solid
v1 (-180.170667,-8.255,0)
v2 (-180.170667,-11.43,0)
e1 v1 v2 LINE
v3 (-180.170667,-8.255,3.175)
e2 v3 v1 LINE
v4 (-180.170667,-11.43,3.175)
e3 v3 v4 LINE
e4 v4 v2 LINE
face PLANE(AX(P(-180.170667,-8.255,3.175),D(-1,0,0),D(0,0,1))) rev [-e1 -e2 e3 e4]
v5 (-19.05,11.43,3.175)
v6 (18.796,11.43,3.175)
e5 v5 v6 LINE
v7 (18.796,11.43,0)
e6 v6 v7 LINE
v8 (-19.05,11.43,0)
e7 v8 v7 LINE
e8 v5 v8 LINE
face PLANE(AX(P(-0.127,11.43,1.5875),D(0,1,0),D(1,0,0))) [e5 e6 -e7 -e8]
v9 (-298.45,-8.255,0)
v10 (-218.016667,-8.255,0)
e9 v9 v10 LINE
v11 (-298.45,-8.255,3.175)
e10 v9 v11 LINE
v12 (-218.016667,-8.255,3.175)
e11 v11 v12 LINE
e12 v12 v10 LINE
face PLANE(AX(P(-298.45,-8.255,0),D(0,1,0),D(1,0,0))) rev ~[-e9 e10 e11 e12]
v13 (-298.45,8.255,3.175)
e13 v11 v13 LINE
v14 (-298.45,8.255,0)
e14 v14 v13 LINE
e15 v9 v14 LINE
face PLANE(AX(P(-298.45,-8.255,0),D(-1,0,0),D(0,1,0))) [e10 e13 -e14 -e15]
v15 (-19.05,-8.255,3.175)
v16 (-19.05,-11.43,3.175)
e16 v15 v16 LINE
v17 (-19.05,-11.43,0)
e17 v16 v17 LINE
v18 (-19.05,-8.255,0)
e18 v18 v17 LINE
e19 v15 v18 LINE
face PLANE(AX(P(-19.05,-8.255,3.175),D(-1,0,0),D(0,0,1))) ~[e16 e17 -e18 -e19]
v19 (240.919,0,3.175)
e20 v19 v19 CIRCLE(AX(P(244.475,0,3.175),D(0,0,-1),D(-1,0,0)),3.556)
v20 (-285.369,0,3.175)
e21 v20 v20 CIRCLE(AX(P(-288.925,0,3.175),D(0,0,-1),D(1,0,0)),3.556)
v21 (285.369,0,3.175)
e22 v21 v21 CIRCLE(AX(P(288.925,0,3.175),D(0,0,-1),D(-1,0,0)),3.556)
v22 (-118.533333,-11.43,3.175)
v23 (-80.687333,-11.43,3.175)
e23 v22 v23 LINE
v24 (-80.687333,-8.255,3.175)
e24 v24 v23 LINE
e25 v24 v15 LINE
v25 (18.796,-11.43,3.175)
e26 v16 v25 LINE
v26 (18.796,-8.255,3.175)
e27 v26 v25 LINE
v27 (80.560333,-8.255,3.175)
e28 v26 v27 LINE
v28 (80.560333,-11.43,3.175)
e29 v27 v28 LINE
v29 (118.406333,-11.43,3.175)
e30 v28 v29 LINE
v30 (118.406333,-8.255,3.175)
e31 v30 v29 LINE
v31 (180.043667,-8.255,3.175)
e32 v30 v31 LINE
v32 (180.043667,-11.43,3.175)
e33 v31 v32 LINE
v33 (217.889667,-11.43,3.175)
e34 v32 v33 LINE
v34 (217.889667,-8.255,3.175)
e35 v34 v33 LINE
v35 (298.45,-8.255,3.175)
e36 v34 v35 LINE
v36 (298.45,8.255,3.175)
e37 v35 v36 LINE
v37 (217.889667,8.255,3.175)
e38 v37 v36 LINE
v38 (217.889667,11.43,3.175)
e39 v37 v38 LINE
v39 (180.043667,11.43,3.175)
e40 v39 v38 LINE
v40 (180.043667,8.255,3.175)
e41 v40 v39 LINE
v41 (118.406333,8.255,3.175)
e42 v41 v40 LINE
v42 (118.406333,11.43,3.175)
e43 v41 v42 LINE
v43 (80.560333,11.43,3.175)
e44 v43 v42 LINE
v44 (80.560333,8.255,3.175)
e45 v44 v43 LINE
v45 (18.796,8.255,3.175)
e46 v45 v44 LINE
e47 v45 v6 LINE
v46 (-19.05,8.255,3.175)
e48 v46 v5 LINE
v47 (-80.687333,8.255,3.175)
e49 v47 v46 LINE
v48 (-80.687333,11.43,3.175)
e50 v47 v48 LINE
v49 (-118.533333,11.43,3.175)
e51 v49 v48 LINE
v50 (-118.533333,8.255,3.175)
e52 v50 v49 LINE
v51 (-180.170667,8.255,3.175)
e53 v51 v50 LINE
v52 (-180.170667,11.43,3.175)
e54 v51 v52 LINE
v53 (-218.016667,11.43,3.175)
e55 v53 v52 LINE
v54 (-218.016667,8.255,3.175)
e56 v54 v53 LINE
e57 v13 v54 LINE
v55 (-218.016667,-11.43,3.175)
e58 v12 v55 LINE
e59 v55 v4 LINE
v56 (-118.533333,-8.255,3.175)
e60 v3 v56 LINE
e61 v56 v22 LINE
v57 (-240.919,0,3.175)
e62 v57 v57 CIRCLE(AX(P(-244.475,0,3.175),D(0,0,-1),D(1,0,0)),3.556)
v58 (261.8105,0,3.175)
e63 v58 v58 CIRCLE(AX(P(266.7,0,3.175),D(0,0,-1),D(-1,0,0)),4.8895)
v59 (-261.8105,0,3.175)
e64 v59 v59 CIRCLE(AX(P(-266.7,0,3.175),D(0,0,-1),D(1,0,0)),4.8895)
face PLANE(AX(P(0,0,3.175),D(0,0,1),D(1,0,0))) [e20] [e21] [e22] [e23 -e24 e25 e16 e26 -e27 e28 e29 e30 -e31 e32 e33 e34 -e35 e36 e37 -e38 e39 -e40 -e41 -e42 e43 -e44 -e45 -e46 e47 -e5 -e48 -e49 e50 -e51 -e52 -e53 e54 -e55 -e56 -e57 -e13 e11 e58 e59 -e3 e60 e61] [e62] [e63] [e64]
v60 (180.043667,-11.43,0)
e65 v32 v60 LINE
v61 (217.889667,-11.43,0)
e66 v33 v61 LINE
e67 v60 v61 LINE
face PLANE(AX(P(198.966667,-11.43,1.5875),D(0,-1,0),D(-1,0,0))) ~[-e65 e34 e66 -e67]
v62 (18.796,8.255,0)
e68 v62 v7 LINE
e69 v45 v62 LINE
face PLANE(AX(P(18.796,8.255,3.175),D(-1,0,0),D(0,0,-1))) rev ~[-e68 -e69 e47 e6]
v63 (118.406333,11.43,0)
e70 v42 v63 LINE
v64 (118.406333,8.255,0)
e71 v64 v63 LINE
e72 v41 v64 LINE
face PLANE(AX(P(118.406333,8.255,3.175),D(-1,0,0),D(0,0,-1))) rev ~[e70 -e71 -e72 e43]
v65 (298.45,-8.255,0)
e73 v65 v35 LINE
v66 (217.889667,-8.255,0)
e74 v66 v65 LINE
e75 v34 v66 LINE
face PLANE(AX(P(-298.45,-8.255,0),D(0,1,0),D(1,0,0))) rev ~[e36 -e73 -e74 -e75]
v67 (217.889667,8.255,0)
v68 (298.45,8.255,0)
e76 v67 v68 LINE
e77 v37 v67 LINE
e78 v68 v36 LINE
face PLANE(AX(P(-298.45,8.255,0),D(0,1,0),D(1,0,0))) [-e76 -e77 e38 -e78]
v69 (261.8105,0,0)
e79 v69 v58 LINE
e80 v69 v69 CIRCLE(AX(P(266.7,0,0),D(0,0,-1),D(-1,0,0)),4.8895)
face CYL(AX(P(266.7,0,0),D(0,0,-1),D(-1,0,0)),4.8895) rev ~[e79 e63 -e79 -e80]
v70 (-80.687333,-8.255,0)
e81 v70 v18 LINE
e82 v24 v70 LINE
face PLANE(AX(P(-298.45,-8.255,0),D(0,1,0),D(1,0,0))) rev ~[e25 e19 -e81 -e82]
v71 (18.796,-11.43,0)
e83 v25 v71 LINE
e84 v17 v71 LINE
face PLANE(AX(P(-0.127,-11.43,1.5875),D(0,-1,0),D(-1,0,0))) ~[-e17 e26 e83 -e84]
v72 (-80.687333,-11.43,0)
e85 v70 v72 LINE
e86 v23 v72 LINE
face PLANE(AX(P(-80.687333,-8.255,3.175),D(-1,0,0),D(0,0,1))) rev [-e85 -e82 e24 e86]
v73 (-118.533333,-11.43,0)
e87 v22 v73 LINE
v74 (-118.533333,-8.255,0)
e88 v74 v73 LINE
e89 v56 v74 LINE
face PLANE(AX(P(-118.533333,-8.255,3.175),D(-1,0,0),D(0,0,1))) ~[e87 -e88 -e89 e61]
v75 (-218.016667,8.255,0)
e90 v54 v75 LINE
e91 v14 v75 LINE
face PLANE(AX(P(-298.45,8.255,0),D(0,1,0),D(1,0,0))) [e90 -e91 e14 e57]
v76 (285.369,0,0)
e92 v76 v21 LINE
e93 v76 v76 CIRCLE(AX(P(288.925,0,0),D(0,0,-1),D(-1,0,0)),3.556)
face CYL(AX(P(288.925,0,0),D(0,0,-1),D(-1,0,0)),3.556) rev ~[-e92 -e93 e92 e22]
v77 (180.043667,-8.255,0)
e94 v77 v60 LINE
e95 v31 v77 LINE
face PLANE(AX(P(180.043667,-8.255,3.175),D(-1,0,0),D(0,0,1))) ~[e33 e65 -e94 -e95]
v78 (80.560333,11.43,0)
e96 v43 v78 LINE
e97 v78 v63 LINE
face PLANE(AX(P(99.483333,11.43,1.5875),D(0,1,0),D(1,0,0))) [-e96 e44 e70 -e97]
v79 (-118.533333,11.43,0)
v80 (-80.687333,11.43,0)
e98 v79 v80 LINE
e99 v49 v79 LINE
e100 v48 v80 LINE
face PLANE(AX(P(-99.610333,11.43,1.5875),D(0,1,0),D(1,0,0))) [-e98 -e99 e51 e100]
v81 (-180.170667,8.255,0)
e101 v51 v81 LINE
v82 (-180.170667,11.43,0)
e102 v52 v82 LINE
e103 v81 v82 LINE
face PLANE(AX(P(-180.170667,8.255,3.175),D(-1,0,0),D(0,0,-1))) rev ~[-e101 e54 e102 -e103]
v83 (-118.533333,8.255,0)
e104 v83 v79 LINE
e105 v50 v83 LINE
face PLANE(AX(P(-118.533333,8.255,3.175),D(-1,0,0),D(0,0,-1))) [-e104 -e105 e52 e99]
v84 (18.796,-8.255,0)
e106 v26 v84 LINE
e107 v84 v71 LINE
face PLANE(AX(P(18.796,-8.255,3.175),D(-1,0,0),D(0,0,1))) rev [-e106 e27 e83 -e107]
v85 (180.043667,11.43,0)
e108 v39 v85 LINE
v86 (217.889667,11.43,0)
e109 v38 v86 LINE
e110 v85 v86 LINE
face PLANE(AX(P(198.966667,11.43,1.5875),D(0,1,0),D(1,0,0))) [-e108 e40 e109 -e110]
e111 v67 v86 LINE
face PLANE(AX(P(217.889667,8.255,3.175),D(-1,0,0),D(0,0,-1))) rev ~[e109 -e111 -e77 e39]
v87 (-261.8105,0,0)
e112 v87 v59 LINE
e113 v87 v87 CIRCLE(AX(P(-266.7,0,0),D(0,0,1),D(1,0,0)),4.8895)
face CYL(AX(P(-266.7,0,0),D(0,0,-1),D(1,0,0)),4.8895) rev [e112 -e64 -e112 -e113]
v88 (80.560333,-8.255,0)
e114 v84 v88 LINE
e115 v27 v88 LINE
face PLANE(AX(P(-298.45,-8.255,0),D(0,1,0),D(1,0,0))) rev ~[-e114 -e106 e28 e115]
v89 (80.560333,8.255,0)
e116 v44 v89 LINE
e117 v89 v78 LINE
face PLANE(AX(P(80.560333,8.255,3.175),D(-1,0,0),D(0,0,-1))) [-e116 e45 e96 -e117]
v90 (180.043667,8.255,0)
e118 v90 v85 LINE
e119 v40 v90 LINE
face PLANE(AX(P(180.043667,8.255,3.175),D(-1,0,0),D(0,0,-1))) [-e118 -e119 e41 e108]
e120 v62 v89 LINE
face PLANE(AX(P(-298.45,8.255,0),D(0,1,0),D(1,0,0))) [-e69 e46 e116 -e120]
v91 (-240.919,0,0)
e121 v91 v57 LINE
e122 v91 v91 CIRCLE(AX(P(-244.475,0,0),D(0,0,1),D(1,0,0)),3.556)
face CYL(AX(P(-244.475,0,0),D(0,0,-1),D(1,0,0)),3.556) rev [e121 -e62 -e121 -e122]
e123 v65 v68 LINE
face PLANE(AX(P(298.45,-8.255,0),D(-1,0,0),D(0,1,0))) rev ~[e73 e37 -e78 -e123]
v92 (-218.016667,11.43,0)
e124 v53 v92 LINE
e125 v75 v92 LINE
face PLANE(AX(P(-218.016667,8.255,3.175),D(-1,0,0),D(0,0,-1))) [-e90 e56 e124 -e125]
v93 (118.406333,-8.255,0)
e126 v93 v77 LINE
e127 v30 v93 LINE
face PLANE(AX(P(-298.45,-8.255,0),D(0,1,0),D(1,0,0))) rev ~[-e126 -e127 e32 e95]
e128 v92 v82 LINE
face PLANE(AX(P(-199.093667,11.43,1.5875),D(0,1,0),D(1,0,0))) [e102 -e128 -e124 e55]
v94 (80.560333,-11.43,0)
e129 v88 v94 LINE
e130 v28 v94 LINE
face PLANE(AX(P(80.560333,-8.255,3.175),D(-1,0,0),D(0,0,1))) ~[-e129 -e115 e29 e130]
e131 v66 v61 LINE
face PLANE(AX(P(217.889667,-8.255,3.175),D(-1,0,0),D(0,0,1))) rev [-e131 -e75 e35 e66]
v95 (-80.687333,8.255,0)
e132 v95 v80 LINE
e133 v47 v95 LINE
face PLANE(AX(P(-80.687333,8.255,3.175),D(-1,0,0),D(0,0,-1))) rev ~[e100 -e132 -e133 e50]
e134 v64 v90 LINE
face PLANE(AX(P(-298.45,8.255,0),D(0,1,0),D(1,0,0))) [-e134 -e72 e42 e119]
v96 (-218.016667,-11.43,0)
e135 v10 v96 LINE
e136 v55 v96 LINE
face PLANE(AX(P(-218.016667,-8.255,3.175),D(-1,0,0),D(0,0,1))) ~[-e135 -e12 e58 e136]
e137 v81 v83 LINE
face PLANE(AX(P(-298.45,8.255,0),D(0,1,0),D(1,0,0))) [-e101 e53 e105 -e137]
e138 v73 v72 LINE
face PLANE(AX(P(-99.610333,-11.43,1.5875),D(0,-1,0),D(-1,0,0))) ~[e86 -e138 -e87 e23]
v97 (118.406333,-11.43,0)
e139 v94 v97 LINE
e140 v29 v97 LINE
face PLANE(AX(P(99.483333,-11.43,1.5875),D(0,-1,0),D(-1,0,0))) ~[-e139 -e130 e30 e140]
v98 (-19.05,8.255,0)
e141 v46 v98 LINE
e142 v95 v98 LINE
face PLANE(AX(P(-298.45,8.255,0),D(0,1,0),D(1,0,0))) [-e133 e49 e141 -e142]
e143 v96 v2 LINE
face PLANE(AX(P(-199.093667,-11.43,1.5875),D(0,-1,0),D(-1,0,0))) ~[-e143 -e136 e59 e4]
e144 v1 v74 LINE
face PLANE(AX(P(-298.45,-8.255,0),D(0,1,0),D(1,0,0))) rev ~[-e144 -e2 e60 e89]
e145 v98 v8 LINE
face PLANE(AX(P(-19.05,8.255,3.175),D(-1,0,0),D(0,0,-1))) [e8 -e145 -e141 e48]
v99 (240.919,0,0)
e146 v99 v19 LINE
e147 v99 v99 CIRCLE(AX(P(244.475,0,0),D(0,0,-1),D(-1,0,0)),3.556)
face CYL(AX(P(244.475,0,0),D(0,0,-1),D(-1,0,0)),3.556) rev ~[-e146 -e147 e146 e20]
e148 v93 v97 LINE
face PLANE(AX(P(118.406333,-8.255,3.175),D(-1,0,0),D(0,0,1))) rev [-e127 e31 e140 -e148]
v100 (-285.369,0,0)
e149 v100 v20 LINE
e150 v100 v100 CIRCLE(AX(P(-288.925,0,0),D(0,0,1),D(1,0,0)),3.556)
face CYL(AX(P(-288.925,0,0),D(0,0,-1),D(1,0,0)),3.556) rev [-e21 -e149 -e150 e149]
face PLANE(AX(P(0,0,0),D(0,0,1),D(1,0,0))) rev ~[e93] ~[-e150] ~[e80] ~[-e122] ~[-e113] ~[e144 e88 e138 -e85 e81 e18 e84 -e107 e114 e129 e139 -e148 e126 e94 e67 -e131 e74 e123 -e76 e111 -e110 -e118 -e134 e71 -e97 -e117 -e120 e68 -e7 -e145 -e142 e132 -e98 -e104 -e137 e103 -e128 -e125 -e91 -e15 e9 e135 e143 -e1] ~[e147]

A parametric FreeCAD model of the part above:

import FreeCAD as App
import Part
import Sketcher
from FreeCAD import Vector
Q = App.Units.Quantity


def add_polygon(sketch, points):
    """Adds a closed chain of lines whose ends are joined by coincident constraints."""
    first, n = sketch.GeometryCount, len(points)
    for a, b in zip(points, points[1:] + points[:1]):
        sketch.addGeometry(Part.LineSegment(App.Vector(*a, 0), App.Vector(*b, 0)), False)
    for i in range(n):
        sketch.addConstraint(Sketcher.Constraint("Coincident", first + i, 2, first + (i + 1) % n, 1))

doc = App.newDocument("Part")
body = doc.addObject("PartDesign::Body", "Body")

sketch1 = body.newObject("Sketcher::SketchObject", "Sketch")
sketch1.AttachmentSupport = (doc.getObject("XY_Plane"), [""])
sketch1.MapMode = "FlatFace"
add_polygon(sketch1, [(-298, 8), (-298, -8), (298, -8), (298, 8)])
sketch1.addConstraint([
    Sketcher.Constraint("Vertical", 0),
    Sketcher.Constraint("Horizontal", 1),
    Sketcher.Constraint("Vertical", 2),
    Sketcher.Constraint("Horizontal", 3),
    Sketcher.Constraint("Symmetric", 0, 2, 2, 2, -1, 1),
    Sketcher.Constraint("DistanceX", 1, 1, 1, 2, Q("23.5 in")),
    Sketcher.Constraint("DistanceY", 0, 2, 0, 1, Q("0.65 in")),
])
pad1 = body.newObject("PartDesign::Pad", "Pad")
pad1.Profile = sketch1
pad1.Length = Q("0.125 in")

sketch2 = body.newObject("Sketcher::SketchObject", "Sketch001")
sketch2.AttachmentSupport = (doc.getObject("XZ_Plane"), [""])
sketch2.MapMode = "FlatFace"
sketch2.AttachmentOffset = App.Placement(Vector(0, 0, -0.325 * 25.4), App.Rotation())
add_polygon(sketch2, [(-218, 0), (-218, 3.2), (-180.2, 3.2), (-180.2, 0)])
add_polygon(sketch2, [(-118.5, 0), (-118.5, 3.2), (-80.7, 3.2), (-80.7, 0)])
add_polygon(sketch2, [(-19.1, 0), (-19.1, 3.2), (18.8, 3.2), (18.8, 0)])
add_polygon(sketch2, [(80.6, 0), (80.6, 3.2), (118.4, 3.2), (118.4, 0)])
add_polygon(sketch2, [(180, 0), (180, 3.2), (217.9, 3.2), (217.9, 0)])
sketch2.addConstraint([
    Sketcher.Constraint("Vertical", 0),
    Sketcher.Constraint("Horizontal", 1),
    Sketcher.Constraint("Vertical", 2),
    Sketcher.Constraint("Horizontal", 3),
    Sketcher.Constraint("Vertical", 4),
    Sketcher.Constraint("Horizontal", 5),
    Sketcher.Constraint("Vertical", 6),
    Sketcher.Constraint("Horizontal", 7),
    Sketcher.Constraint("Vertical", 8),
    Sketcher.Constraint("Horizontal", 9),
    Sketcher.Constraint("Vertical", 10),
    Sketcher.Constraint("Horizontal", 11),
    Sketcher.Constraint("Vertical", 12),
    Sketcher.Constraint("Horizontal", 13),
    Sketcher.Constraint("Vertical", 14),
    Sketcher.Constraint("Horizontal", 15),
    Sketcher.Constraint("Vertical", 16),
    Sketcher.Constraint("Horizontal", 17),
    Sketcher.Constraint("Vertical", 18),
    Sketcher.Constraint("Horizontal", 19),
    Sketcher.Constraint("PointOnObject", 2, 2, -1),
    Sketcher.Constraint("PointOnObject", 6, 2, -1),
    Sketcher.Constraint("PointOnObject", 10, 2, -1),
    Sketcher.Constraint("PointOnObject", 14, 2, -1),
    Sketcher.Constraint("PointOnObject", 18, 2, -1),
    Sketcher.Constraint("Horizontal", 1, 2, 4, 2),
    Sketcher.Constraint("Horizontal", 5, 2, 8, 2),
    Sketcher.Constraint("Horizontal", 9, 2, 12, 2),
    Sketcher.Constraint("Horizontal", 13, 2, 16, 2),
    Sketcher.Constraint("Equal", 3, 5),
    Sketcher.Constraint("Equal", 7, 9),
    Sketcher.Constraint("Equal", 11, 13),
    Sketcher.Constraint("Equal", 15, 17),
    Sketcher.Constraint("DistanceX", 1, 1, 1, 2, Q("1.49 in")),
    Sketcher.Constraint("DistanceY", 0, 1, 0, 2, Q("0.125 in")),
    Sketcher.Constraint("DistanceX", 8, 2, -1, 1, Q("0.75 in")),
    Sketcher.Constraint("DistanceX", 0, 2, -1, 1, 218.016667),
    Sketcher.Constraint("DistanceX", 4, 2, -1, 1, 118.533333),
    Sketcher.Constraint("DistanceX", -1, 1, 12, 2, 80.560333),
    Sketcher.Constraint("DistanceX", -1, 1, 16, 2, 180.043667),
])
pad2 = body.newObject("PartDesign::Pad", "Pad001")
pad2.Profile = sketch2
pad2.Length = Q("0.125 in")
pad2.Reversed = True
doc.recompute()

mirrored = body.newObject("PartDesign::Mirrored", "Mirrored")
mirrored.Originals = [pad2]
mirrored.MirrorPlane = (doc.getObject("XZ_Plane"), [""])
body.Tip = mirrored

sketch3 = body.newObject("Sketcher::SketchObject", "Sketch002")
sketch3.AttachmentSupport = (doc.getObject("XY_Plane"), [""])
sketch3.MapMode = "FlatFace"
sketch3.addGeometry([
    Part.Circle(Vector(288.9, 0, 0), Vector(0, 0, 1), 3.6),
    Part.Circle(Vector(244.5, 0, 0), Vector(0, 0, 1), 3.6),
    Part.Circle(Vector(266.7, 0, 0), Vector(0, 0, 1), 4.9),
], False)
sketch3.addConstraint([
    Sketcher.Constraint("Equal", 0, 1),
    Sketcher.Constraint("PointOnObject", 0, 3, -1),
    Sketcher.Constraint("PointOnObject", 1, 3, -1),
    Sketcher.Constraint("PointOnObject", 2, 3, -1),
    Sketcher.Constraint("Diameter", 0, Q("0.28 in")),
    Sketcher.Constraint("Diameter", 2, Q("0.385 in")),
    Sketcher.Constraint("DistanceX", -1, 1, 2, 3, Q("10.5 in")),
    Sketcher.Constraint("DistanceX", 1, 3, 0, 3, Q("1.75 in")),
    Sketcher.Constraint("DistanceX", -1, 1, 0, 3, Q("11.375 in")),
])
pocket1 = body.newObject("PartDesign::Pocket", "Pocket")
pocket1.Profile = sketch3
pocket1.Type = "ThroughAll"
pocket1.Reversed = True
doc.recompute()

mirrored2 = body.newObject("PartDesign::Mirrored", "Mirrored001")
mirrored2.Originals = [pocket1]
mirrored2.MirrorPlane = (doc.getObject("YZ_Plane"), [""])
body.Tip = mirrored2

doc.recompute()
